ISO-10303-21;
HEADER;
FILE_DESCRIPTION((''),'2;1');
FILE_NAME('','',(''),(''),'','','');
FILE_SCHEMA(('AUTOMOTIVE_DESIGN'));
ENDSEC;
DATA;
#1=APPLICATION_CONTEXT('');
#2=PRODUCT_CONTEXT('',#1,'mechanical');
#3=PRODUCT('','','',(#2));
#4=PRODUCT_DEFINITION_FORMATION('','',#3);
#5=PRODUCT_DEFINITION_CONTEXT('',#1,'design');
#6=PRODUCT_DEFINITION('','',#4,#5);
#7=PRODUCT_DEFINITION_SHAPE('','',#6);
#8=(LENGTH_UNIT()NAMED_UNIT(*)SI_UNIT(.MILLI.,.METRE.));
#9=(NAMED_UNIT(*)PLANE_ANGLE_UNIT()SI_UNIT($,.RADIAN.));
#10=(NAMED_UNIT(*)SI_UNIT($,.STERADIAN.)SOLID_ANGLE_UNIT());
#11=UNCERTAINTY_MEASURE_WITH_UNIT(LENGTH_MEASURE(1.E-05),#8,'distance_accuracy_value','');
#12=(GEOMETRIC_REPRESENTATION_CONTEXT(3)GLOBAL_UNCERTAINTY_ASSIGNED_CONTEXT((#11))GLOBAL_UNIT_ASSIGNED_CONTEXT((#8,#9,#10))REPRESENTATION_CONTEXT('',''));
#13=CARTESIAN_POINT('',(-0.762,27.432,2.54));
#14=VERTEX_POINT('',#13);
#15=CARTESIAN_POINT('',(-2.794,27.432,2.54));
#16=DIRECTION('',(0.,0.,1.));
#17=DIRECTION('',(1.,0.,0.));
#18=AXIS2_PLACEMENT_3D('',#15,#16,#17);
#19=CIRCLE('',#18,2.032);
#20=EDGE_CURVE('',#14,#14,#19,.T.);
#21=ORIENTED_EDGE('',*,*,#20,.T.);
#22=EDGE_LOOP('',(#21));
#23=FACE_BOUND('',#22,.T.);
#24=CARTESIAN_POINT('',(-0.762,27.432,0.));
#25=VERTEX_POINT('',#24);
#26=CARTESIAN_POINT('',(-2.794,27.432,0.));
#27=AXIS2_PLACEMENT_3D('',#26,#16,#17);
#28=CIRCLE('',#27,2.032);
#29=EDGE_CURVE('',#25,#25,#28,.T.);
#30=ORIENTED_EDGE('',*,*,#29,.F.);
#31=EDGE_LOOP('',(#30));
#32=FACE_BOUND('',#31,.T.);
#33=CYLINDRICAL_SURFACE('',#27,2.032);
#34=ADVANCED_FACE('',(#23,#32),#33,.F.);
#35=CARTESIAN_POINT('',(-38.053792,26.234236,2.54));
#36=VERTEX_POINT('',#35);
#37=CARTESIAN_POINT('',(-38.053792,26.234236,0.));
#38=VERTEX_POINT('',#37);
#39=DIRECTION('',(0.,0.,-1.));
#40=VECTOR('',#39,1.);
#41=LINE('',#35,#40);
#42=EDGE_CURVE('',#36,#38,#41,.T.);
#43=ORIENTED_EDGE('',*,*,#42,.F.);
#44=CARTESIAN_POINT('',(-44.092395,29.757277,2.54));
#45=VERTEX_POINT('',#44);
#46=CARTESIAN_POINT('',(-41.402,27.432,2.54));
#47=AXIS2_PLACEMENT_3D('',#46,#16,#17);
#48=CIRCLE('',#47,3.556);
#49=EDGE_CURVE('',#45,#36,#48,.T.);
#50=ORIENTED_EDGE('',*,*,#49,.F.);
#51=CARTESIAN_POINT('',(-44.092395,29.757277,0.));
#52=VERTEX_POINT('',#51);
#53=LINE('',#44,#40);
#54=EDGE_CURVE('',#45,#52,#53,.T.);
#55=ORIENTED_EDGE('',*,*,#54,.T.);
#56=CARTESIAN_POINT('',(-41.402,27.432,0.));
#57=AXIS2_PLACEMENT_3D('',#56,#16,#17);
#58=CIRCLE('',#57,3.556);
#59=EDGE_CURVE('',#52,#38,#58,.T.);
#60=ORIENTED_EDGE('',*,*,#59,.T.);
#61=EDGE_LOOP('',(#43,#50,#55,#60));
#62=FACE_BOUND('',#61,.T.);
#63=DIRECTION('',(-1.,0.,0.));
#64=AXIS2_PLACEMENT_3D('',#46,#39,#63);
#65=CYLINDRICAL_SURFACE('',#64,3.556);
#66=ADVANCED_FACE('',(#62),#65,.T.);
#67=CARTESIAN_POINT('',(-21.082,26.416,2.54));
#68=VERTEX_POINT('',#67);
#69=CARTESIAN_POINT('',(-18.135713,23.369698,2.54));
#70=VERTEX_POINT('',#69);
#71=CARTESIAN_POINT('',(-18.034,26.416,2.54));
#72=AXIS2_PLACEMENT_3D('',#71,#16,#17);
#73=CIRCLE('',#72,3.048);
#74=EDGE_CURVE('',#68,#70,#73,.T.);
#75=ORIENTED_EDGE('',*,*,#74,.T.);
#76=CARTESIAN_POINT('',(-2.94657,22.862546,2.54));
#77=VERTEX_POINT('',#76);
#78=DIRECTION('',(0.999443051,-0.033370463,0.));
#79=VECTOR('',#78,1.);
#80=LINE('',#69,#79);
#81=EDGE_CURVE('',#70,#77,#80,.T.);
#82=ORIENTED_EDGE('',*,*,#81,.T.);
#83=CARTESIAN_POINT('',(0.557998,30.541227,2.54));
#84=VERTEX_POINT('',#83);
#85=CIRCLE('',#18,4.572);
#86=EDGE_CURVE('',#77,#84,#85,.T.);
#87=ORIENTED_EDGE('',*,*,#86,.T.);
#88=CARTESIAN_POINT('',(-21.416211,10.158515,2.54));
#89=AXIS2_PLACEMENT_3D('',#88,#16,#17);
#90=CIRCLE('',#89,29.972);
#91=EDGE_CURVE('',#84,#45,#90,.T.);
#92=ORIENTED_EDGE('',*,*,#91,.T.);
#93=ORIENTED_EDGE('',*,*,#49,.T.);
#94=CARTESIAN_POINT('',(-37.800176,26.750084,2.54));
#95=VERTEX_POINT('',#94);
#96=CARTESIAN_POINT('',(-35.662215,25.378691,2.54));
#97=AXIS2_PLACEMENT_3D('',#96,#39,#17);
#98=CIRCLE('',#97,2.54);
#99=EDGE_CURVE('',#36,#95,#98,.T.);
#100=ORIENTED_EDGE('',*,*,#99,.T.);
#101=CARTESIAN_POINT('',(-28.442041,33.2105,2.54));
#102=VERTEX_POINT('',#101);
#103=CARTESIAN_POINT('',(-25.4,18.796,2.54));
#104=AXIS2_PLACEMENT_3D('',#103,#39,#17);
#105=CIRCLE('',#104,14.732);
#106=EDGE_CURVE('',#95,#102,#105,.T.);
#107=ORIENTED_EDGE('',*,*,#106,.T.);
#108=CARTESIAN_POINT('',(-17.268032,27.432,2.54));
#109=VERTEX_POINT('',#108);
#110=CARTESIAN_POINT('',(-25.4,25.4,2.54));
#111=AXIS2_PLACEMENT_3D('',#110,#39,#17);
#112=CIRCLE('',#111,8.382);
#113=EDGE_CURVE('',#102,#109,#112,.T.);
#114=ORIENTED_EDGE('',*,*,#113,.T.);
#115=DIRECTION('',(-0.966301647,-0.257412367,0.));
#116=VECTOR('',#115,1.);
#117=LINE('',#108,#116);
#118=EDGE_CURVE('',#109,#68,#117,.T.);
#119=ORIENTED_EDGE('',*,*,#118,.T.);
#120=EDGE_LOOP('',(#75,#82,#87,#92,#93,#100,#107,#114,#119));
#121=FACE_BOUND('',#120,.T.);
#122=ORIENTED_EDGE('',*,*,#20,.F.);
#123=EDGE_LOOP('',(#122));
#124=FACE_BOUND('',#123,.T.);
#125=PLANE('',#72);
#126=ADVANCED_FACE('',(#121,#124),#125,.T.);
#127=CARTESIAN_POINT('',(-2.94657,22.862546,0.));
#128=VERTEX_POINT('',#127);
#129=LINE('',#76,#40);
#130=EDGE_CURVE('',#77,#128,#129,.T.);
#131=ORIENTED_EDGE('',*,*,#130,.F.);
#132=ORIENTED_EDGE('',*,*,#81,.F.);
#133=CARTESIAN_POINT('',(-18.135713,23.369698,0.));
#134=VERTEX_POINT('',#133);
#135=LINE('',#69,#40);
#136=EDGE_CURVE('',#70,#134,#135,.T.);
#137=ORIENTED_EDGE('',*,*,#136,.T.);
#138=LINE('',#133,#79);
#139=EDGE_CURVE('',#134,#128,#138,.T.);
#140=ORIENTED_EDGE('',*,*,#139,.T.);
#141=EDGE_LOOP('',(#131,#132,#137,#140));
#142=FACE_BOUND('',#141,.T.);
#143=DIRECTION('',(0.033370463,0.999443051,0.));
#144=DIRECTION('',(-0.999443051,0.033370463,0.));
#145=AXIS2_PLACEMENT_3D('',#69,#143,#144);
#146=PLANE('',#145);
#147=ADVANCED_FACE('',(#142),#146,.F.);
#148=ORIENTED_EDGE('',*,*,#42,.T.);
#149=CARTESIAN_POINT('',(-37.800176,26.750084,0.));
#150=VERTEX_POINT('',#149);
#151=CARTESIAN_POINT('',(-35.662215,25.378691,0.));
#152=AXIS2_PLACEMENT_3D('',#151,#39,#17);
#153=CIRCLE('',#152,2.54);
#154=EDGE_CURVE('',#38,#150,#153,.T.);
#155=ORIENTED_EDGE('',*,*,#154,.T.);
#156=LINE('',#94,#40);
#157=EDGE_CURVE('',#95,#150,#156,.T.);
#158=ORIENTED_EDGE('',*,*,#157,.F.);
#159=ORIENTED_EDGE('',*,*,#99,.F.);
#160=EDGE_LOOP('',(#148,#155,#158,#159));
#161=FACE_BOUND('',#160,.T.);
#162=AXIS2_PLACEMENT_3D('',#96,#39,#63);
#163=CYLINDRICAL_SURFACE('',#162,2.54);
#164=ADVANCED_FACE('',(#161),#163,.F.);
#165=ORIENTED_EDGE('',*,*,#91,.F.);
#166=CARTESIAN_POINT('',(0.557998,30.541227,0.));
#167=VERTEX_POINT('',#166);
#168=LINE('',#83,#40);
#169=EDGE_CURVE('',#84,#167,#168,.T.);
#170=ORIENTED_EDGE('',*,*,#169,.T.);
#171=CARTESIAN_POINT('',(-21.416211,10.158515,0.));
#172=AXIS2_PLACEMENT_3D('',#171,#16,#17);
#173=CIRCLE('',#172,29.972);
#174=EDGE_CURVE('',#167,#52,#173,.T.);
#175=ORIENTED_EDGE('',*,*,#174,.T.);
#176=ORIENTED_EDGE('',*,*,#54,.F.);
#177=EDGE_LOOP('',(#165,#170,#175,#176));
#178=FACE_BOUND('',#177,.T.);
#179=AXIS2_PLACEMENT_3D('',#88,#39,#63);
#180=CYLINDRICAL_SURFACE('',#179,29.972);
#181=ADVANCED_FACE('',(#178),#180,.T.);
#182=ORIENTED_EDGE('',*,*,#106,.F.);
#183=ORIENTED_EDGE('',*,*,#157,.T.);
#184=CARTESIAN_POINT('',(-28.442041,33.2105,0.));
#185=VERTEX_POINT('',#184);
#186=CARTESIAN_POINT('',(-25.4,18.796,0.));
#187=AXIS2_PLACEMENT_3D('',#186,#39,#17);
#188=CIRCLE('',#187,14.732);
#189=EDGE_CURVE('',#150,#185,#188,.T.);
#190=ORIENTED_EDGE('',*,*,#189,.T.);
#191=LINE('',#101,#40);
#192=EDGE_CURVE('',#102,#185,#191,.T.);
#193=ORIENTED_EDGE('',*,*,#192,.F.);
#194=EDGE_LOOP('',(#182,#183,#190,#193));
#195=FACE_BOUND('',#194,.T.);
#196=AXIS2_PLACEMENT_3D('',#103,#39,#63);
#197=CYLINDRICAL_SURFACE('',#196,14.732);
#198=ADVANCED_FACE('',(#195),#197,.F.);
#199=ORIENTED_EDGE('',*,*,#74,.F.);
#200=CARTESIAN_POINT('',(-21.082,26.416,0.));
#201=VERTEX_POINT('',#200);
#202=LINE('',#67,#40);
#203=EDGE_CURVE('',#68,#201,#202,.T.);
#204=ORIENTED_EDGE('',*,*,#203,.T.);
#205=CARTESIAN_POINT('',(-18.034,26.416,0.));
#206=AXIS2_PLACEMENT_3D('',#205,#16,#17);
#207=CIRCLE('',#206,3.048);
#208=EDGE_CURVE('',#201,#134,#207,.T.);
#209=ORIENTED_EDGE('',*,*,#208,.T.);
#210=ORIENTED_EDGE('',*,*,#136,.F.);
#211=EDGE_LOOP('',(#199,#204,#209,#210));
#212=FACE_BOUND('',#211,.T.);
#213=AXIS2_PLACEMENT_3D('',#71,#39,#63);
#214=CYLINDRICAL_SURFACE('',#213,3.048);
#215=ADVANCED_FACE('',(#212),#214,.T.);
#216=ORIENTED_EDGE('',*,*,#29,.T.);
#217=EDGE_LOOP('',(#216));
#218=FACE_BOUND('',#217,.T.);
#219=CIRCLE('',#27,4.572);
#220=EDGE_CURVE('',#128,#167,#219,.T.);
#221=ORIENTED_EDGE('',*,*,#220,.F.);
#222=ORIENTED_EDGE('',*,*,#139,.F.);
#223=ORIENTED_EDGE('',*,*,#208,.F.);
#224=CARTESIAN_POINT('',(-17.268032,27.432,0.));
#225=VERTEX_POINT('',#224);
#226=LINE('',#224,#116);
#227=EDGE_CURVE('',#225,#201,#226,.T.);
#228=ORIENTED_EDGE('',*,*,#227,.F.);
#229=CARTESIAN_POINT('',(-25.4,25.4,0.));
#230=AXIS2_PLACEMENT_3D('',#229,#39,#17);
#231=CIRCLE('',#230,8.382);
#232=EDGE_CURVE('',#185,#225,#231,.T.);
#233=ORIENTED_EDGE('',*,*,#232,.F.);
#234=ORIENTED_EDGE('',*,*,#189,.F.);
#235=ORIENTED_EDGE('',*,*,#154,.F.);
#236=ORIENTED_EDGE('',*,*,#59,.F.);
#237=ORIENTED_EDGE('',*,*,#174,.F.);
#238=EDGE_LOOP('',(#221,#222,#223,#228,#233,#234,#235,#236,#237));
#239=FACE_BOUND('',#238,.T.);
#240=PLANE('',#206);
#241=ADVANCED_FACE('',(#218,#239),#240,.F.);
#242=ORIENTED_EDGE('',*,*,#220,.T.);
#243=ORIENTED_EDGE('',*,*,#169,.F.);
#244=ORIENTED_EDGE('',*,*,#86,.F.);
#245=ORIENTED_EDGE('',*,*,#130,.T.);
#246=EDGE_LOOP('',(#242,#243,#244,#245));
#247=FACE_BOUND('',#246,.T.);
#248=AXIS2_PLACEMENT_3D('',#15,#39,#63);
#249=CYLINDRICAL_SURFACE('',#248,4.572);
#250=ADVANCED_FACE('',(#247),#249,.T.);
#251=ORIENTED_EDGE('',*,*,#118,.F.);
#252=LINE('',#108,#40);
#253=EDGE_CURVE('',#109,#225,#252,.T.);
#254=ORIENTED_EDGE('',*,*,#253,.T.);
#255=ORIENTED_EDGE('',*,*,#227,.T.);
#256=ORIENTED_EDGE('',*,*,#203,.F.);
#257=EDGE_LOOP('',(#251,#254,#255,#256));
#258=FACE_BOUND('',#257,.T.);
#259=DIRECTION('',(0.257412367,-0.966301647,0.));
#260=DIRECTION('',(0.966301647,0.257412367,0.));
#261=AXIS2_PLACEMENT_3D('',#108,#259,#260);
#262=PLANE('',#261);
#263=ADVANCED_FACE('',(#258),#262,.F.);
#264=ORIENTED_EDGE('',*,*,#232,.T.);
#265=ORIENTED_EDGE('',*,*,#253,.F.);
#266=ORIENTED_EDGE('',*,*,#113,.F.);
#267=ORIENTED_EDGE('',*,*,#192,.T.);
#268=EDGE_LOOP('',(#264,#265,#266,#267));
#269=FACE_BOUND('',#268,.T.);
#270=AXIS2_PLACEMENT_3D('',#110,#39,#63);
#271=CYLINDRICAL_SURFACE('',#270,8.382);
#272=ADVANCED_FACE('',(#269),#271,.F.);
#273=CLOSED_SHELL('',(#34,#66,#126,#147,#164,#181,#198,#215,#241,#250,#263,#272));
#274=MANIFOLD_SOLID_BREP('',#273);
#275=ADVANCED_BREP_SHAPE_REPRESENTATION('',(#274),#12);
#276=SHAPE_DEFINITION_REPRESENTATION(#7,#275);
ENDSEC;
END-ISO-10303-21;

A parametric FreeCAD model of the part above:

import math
import FreeCAD as App
import Part
import Sketcher
from FreeCAD import Vector
Q = App.Units.Quantity

doc = App.newDocument("Part")
body = doc.addObject("PartDesign::Body", "Body")

sketch1 = body.newObject("Sketcher::SketchObject", "Sketch")
sketch1.AttachmentSupport = (doc.getObject("XY_Plane"), [""])
sketch1.MapMode = "FlatFace"
sketch1.addGeometry([
    Part.LineSegment(Vector(-18.135713, 23.369698, 0), Vector(-2.94657, 22.862546, 0)),
    Part.ArcOfCircle(Part.Circle(Vector(-2.794, 27.432, 0), Vector(0, 0, 1), 4.572), math.radians(-91.912342), math.radians(42.848211)),
    Part.ArcOfCircle(Part.Circle(Vector(-21.416211, 10.158515, 0), Vector(0, 0, 1), 29.972), math.radians(42.848211), math.radians(139.163527)),
    Part.ArcOfCircle(Part.Circle(Vector(-41.402, 27.432, 0), Vector(0, 0, 1), 3.556), math.radians(139.163527), math.radians(340.316205)),
    Part.ArcOfCircle(Part.Circle(Vector(-35.662215, 25.378691, 0), Vector(0, 0, 1), 2.54), math.radians(147.321885), math.radians(160.316205)),
    Part.ArcOfCircle(Part.Circle(Vector(-25.4, 18.796, 0), Vector(0, 0, 1), 14.732), math.radians(101.916857), math.radians(147.321885)),
    Part.ArcOfCircle(Part.Circle(Vector(-25.4, 25.4, 0), Vector(0, 0, 1), 8.382), math.radians(14.029665), math.radians(111.279966)),
    Part.LineSegment(Vector(-17.268032, 27.432, 0), Vector(-21.082, 26.416, 0)),
    Part.ArcOfCircle(Part.Circle(Vector(-18.034, 26.416, 0), Vector(0, 0, 1), 3.048), math.radians(-180), math.radians(-91.912342)),
], False)
sketch1.addConstraint([
    Sketcher.Constraint("Tangent", 0, 2, 1, 1),
    Sketcher.Constraint("Tangent", 1, 2, 2, 1),
    Sketcher.Constraint("Tangent", 2, 2, 3, 1),
    Sketcher.Constraint("Tangent", 3, 2, 4, 2),
    Sketcher.Constraint("Tangent", 4, 1, 5, 2),
    Sketcher.Constraint("Coincident", 5, 1, 6, 2),
    Sketcher.Constraint("Coincident", 6, 1, 7, 1),
    Sketcher.Constraint("Coincident", 7, 2, 8, 1),
    Sketcher.Constraint("Tangent", 8, 2, 0, 1),
    Sketcher.Constraint("Horizontal", 1, 3, 3, 3),
    Sketcher.Constraint("Horizontal", 3, 3, 6, 1),
    Sketcher.Constraint("Horizontal", 8, 3, 7, 2),
    Sketcher.Constraint("Vertical", 5, 3, 6, 3),
    Sketcher.Constraint("Radius", 4, Q("0.1 in")),
    Sketcher.Constraint("Radius", 1, Q("0.18 in")),
    Sketcher.Constraint("Radius", 2, Q("1.18 in")),
    Sketcher.Constraint("Radius", 3, Q("0.14 in")),
    Sketcher.Constraint("Radius", 5, Q("0.58 in")),
    Sketcher.Constraint("Radius", 6, Q("0.33 in")),
    Sketcher.Constraint("Radius", 8, Q("0.12 in")),
    Sketcher.Constraint("DistanceX", 5, 3, -1, 1, Q("1 in")),
    Sketcher.Constraint("DistanceY", -1, 1, 6, 3, Q("1 in")),
    Sketcher.Constraint("DistanceY", 5, 3, 8, 3, Q("0.3 in")),
    Sketcher.Constraint("DistanceX", 8, 3, 1, 3, Q("0.6 in")),
    Sketcher.Constraint("DistanceX", 1, 3, -1, 1, Q("0.11 in")),
    Sketcher.Constraint("DistanceY", -1, 1, 1, 3, Q("1.08 in")),
    Sketcher.Constraint("DistanceX", 3, 3, -1, 1, Q("1.63 in")),
    Sketcher.Constraint("DistanceY", -1, 1, 5, 3, Q("0.74 in")),
])
pad1 = body.newObject("PartDesign::Pad", "Pad")
pad1.Profile = sketch1
pad1.Length = Q("0.1 in")

sketch2 = body.newObject("Sketcher::SketchObject", "Sketch001")
sketch2.AttachmentSupport = (doc.getObject("XY_Plane"), [""])
sketch2.MapMode = "FlatFace"
sketch2.AttachmentOffset = App.Placement(Vector(0, 0, 0.1 * 25.4), App.Rotation())
sketch2.addGeometry(Part.Circle(Vector(-2.794, 27.432, 0), Vector(0, 0, 1), 2.032), False)
sketch2.addConstraint([
    Sketcher.Constraint("Diameter", 0, Q("0.16 in")),
    Sketcher.Constraint("DistanceX", 0, 3, -1, 1, Q("0.11 in")),
    Sketcher.Constraint("DistanceY", -1, 1, 0, 3, Q("1.08 in")),
])
pocket1 = body.newObject("PartDesign::Pocket", "Pocket")
pocket1.Profile = sketch2
pocket1.Type = "ThroughAll"

doc.recompute()
